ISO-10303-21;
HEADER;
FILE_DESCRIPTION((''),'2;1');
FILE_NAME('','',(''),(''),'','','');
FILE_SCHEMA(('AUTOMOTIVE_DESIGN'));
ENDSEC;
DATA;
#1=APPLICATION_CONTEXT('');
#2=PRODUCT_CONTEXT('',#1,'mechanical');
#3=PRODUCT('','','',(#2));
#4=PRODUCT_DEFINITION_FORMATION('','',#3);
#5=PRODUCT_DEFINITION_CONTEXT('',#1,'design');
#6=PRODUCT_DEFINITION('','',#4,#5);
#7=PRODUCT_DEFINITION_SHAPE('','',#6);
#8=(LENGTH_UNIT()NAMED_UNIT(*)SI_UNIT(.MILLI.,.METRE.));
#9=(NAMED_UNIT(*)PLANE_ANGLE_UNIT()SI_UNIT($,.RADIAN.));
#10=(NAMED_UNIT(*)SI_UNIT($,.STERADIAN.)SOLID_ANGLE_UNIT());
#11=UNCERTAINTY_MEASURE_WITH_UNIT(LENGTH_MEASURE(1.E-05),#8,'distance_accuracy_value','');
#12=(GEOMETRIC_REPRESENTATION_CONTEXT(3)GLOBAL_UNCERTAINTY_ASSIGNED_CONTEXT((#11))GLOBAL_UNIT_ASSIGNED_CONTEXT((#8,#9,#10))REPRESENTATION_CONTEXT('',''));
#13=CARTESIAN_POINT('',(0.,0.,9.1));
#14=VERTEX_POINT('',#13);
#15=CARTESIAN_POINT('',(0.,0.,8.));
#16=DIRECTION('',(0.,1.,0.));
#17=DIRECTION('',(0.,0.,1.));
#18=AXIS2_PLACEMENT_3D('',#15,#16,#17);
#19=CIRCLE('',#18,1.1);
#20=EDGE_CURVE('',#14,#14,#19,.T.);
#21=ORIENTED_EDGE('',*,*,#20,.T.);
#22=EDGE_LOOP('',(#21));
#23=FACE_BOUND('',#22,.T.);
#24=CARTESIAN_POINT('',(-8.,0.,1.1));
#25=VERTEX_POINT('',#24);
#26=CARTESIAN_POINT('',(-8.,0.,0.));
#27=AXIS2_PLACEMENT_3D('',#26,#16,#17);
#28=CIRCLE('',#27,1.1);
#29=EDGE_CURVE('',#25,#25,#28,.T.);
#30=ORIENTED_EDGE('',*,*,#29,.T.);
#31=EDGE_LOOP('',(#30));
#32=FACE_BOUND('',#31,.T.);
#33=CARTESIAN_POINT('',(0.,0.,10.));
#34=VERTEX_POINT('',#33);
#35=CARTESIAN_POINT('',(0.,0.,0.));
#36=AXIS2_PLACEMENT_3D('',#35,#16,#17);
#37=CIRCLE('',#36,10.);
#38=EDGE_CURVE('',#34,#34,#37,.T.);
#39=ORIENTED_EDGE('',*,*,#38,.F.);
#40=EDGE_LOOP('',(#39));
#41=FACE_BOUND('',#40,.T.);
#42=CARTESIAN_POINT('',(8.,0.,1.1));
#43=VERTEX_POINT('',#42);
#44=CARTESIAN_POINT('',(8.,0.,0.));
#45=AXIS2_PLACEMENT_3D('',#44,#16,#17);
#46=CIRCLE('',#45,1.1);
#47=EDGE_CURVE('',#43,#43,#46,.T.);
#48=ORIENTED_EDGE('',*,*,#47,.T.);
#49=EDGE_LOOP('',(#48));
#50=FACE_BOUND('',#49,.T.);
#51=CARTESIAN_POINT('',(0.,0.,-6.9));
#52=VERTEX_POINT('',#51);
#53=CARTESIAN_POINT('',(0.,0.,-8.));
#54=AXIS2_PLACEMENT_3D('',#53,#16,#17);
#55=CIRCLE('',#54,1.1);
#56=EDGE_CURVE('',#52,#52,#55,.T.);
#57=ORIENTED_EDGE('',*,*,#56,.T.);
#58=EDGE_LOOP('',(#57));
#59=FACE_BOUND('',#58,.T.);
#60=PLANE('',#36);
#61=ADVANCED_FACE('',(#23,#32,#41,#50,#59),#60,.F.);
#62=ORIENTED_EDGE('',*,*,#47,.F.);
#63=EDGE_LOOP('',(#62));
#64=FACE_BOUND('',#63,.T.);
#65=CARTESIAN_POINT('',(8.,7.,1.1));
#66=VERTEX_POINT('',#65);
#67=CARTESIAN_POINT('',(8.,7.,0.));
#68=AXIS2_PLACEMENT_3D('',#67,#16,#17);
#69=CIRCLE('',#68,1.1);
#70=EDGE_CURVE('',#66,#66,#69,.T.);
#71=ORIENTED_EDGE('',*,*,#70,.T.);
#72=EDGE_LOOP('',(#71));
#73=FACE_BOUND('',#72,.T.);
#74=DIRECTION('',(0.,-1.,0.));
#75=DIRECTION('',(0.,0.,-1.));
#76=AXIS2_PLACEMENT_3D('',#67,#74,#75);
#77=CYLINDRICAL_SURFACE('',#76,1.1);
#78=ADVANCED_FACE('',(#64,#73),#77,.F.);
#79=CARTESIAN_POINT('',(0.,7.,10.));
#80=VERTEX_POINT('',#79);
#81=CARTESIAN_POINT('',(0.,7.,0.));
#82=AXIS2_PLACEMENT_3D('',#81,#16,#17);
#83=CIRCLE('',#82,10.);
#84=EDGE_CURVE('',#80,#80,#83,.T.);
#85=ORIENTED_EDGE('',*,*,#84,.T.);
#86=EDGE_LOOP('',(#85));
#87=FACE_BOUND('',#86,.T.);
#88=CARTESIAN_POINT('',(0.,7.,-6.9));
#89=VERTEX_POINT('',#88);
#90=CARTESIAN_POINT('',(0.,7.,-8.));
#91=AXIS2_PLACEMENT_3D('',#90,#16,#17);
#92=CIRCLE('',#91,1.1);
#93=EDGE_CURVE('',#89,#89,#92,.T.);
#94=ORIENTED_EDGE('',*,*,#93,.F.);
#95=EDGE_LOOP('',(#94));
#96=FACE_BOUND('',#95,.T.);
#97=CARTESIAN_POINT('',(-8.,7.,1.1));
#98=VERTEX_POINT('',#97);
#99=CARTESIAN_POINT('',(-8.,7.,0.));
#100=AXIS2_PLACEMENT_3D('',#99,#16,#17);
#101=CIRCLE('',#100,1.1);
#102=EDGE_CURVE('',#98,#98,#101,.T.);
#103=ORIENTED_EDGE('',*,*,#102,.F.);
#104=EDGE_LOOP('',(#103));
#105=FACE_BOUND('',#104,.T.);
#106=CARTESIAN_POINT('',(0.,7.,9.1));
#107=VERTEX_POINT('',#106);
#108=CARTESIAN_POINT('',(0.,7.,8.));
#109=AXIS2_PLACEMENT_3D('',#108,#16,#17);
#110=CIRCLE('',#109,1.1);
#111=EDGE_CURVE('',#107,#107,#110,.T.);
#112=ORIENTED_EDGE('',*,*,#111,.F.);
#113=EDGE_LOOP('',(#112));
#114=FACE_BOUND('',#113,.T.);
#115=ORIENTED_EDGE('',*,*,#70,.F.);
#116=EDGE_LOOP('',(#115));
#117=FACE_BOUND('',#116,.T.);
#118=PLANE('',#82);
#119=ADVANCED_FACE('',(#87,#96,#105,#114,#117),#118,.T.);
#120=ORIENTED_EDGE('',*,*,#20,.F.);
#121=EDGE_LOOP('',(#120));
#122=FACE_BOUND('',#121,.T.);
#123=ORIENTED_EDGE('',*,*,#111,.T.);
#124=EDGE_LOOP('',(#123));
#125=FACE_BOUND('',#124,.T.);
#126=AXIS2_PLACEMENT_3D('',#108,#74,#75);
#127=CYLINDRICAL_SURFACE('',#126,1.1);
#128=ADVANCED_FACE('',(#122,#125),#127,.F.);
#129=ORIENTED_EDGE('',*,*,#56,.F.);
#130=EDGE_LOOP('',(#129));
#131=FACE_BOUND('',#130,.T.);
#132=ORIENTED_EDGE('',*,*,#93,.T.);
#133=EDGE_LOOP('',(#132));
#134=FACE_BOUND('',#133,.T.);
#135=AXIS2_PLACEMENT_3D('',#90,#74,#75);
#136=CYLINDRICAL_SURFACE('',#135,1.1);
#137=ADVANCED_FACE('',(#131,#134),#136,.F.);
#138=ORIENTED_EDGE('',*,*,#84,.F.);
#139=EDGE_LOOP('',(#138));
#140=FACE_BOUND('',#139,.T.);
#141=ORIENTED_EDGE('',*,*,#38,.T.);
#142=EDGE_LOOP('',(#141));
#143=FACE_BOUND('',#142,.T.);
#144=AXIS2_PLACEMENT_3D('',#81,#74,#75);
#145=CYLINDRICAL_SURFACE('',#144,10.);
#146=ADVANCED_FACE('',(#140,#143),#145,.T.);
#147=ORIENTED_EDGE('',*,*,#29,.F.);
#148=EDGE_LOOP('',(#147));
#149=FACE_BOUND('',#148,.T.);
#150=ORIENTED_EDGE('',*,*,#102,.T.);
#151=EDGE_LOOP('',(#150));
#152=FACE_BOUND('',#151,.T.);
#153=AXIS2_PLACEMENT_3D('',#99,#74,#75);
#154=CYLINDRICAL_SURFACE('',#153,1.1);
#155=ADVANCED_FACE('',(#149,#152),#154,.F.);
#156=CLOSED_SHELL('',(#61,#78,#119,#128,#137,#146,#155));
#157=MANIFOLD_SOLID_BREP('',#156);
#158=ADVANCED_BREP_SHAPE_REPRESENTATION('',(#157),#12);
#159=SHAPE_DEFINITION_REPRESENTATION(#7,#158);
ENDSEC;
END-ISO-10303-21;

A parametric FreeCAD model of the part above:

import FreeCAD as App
import Part
import Sketcher
from FreeCAD import Vector
Q = App.Units.Quantity

doc = App.newDocument("Part")
params = doc.addObject("Spreadsheet::Sheet", "Params")
for row, (alias, value) in enumerate([
    ("sketch1_diameter", "20 mm"),
    ("sketch1_diameter2", "2.2 mm"),
    ("pad1_length", "7 mm"),
], start=1):
    params.set(f"A{row}", alias)
    params.set(f"B{row}", "=" + value)
    params.setAlias(f"B{row}", alias)

body = doc.addObject("PartDesign::Body", "Body")

# Sketch on XZ plane
sketch1 = doc.addObject("Sketcher::SketchObject", "Sketch")
body.addObject(sketch1)
sketch1.AttachmentSupport = (doc.XZ_Plane, [""])
sketch1.MapMode = "FlatFace"
sketch1.addGeometry(Part.Circle(Vector(0, 0, 0), Vector(0, 0, 1), 10), False)
sketch1.addGeometry(Part.Circle(Vector(-8, 0, 0), Vector(0, 0, 1), 1.1), False)
sketch1.addGeometry(Part.Circle(Vector(0, 8, 0), Vector(0, 0, 1), 1.1), False)
sketch1.addGeometry(Part.Circle(Vector(8, 0, 0), Vector(0, 0, 1), 1.1), False)
sketch1.addGeometry(Part.Circle(Vector(0, -8, 0), Vector(0, 0, 1), 1.1), False)
sketch1.addConstraint(Sketcher.Constraint("Coincident", 0, 3, -1, 1))
sketch1.addConstraint(Sketcher.Constraint("Equal", 1, 2))
sketch1.addConstraint(Sketcher.Constraint("Equal", 2, 3))
sketch1.addConstraint(Sketcher.Constraint("Equal", 3, 4))
sketch1.addConstraint(Sketcher.Constraint("Symmetric", 1, 3, 3, 3, -1, 1))
sketch1.addConstraint(Sketcher.Constraint("Symmetric", 2, 3, 4, 3, -1, 1))
sketch1.addConstraint(Sketcher.Constraint("PointOnObject", 1, 3, -1))
sketch1.addConstraint(Sketcher.Constraint("PointOnObject", 2, 3, -2))
sketch1.addConstraint(Sketcher.Constraint("Diameter", 0, Q("20 mm")))
sketch1.addConstraint(Sketcher.Constraint("Diameter", 1, Q("2.2 mm")))
sketch1.addConstraint(Sketcher.Constraint("DistanceX", 1, 3, -1, 1, Q("8 mm")))
sketch1.addConstraint(Sketcher.Constraint("DistanceY", -1, 1, 2, 3, Q("8 mm")))
sketch1.setExpression("Constraints[8]", "Params.sketch1_diameter")
sketch1.setExpression("Constraints[9]", "Params.sketch1_diameter2")
pad1 = doc.addObject("PartDesign::Pad", "Pad")
body.addObject(pad1)
pad1.Profile = sketch1
pad1.setExpression("Length", "Params.pad1_length")
pad1.Reversed = True

doc.recompute()
